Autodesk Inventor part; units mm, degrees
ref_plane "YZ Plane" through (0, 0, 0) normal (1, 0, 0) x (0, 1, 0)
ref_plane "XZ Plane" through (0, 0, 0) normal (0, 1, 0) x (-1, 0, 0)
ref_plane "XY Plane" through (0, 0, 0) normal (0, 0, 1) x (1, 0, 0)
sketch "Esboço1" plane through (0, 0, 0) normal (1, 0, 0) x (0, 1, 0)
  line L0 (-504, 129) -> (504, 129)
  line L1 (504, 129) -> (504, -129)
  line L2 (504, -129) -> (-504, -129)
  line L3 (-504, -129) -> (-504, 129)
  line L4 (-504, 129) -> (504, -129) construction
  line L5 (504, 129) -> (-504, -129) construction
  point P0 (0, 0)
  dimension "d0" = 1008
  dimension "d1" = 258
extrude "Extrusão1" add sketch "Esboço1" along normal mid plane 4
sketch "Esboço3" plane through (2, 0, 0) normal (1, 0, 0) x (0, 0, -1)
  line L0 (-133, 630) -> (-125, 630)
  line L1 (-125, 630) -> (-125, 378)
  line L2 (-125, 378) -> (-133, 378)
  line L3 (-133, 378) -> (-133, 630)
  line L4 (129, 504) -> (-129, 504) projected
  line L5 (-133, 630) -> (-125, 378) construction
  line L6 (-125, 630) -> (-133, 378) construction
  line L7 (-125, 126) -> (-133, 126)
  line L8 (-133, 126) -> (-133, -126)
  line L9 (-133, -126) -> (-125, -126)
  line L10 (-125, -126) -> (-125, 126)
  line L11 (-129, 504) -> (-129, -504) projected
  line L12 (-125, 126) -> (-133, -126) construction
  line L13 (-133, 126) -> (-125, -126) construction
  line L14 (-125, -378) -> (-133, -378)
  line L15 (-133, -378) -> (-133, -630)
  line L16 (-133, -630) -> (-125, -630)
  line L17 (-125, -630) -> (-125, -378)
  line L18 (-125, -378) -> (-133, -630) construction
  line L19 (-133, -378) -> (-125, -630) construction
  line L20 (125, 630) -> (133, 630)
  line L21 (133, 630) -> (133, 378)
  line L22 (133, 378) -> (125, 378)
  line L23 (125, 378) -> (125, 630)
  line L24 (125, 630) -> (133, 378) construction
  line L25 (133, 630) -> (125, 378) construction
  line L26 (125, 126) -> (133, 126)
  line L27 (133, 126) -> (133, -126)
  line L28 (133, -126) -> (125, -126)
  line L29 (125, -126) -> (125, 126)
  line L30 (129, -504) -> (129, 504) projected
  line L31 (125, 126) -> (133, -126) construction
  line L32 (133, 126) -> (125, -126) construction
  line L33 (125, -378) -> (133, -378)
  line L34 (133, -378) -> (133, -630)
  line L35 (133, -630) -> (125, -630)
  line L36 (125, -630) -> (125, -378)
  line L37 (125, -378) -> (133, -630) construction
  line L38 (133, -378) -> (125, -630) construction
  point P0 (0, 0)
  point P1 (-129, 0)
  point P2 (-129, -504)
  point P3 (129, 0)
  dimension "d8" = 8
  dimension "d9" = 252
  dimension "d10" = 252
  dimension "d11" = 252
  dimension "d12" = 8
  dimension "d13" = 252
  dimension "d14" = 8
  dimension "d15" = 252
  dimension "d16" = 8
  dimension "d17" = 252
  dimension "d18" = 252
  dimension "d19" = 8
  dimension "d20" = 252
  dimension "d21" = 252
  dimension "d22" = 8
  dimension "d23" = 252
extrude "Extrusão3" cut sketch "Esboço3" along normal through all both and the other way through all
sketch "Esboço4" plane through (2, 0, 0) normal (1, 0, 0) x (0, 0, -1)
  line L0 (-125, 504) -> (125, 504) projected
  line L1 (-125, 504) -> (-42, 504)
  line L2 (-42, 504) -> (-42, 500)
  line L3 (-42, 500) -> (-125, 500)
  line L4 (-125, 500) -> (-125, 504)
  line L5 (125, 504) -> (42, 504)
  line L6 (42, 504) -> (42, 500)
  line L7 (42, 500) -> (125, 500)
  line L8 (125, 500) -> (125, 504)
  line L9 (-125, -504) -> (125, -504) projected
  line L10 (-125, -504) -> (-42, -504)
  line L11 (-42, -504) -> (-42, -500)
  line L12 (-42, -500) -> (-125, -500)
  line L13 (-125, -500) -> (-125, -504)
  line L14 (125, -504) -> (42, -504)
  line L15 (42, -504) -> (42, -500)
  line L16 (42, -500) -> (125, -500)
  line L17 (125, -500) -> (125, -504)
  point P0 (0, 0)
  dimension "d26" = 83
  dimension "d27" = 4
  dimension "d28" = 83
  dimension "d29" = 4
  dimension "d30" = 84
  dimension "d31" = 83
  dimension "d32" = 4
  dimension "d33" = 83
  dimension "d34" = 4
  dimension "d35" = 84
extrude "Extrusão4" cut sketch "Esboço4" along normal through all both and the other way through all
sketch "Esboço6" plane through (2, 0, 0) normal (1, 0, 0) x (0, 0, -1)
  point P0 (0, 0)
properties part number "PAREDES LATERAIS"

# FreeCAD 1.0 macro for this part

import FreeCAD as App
import Part
import Sketcher
from FreeCAD import Vector
Q = App.Units.Quantity


def add_polygon(sketch, points):
    """Adds a closed chain of lines whose ends are joined by coincident constraints."""
    first, n = sketch.GeometryCount, len(points)
    for a, b in zip(points, points[1:] + points[:1]):
        sketch.addGeometry(Part.LineSegment(App.Vector(*a, 0), App.Vector(*b, 0)), False)
    for i in range(n):
        sketch.addConstraint(Sketcher.Constraint("Coincident", first + i, 2, first + (i + 1) % n, 1))

doc = App.newDocument("Part")
body = doc.addObject("PartDesign::Body", "Body")

sketch1 = doc.addObject("Sketcher::SketchObject", "Sketch")
body.addObject(sketch1)
sketch1.AttachmentSupport = (doc.YZ_Plane, [""])
sketch1.MapMode = "FlatFace"
add_polygon(sketch1, [(504, 129), (-504, 129), (-504, -129), (504, -129)])
sketch1.addConstraint([
    Sketcher.Constraint("Horizontal", 0),
    Sketcher.Constraint("Vertical", 1),
    Sketcher.Constraint("Horizontal", 2),
    Sketcher.Constraint("Vertical", 3),
    Sketcher.Constraint("Symmetric", 0, 2, 2, 2, -1, 1),
    Sketcher.Constraint("DistanceX", 0, 2, 0, 1, Q("1008 mm")),
    Sketcher.Constraint("DistanceY", 1, 2, 1, 1, Q("258 mm")),
])
pad1 = doc.addObject("PartDesign::Pad", "Pad")
body.addObject(pad1)
pad1.Profile = sketch1
pad1.Length = 4
pad1.Midplane = True

sketch2 = doc.addObject("Sketcher::SketchObject", "Sketch001")
body.addObject(sketch2)
sketch2.AttachmentSupport = (doc.YZ_Plane, [""])
sketch2.MapMode = "FlatFace"
sketch2.AttachmentOffset = App.Placement(Vector(0, 0, 2), App.Rotation())
add_polygon(sketch2, [(-378, -133), (-378, -125), (-630, -125), (-630, -133)])
add_polygon(sketch2, [(126, -133), (126, -125), (-126, -125), (-126, -133)])
add_polygon(sketch2, [(630, -125), (378, -125), (378, -133), (630, -133)])
add_polygon(sketch2, [(-378, 125), (-378, 133), (-630, 133), (-630, 125)])
add_polygon(sketch2, [(126, 125), (126, 133), (-126, 133), (-126, 125)])
add_polygon(sketch2, [(630, 125), (630, 133), (378, 133), (378, 125)])
sketch2.addConstraint([
    Sketcher.Constraint("Vertical", 0),
    Sketcher.Constraint("Horizontal", 1),
    Sketcher.Constraint("Vertical", 2),
    Sketcher.Constraint("Horizontal", 3),
    Sketcher.Constraint("Vertical", 4),
    Sketcher.Constraint("Horizontal", 5),
    Sketcher.Constraint("Vertical", 6),
    Sketcher.Constraint("Horizontal", 7),
    Sketcher.Constraint("Horizontal", 8),
    Sketcher.Constraint("Vertical", 9),
    Sketcher.Constraint("Horizontal", 10),
    Sketcher.Constraint("Vertical", 11),
    Sketcher.Constraint("Vertical", 12),
    Sketcher.Constraint("Horizontal", 13),
    Sketcher.Constraint("Vertical", 14),
    Sketcher.Constraint("Horizontal", 15),
    Sketcher.Constraint("Vertical", 16),
    Sketcher.Constraint("Horizontal", 17),
    Sketcher.Constraint("Vertical", 18),
    Sketcher.Constraint("Horizontal", 19),
    Sketcher.Constraint("Vertical", 20),
    Sketcher.Constraint("Horizontal", 21),
    Sketcher.Constraint("Vertical", 22),
    Sketcher.Constraint("Horizontal", 23),
    Sketcher.Constraint("Symmetric", 9, 2, 12, 2, -1, 1),
    Sketcher.Constraint("Symmetric", 11, 2, 14, 2, -1, 1),
    Sketcher.Constraint("Symmetric", 6, 2, 16, 2, -1, 1),
    Sketcher.Constraint("Symmetric", 4, 2, 18, 2, -1, 1),
    Sketcher.Constraint("Symmetric", 2, 2, 20, 2, -1, 1),
    Sketcher.Constraint("Symmetric", 0, 2, 22, 2, -1, 1),
    Sketcher.Constraint("Symmetric", 0, 2, 8, 2, -2),
    Sketcher.Constraint("Symmetric", 2, 2, 10, 2, -2),
    Sketcher.Constraint("Horizontal", 1, 2, 4, 2),
    Sketcher.Constraint("Horizontal", 3, 2, 6, 2),
    Sketcher.Constraint("Vertical", 7, 2, 16, 2),
    Sketcher.Constraint("Equal", 3, 5),
    Sketcher.Constraint("DistanceX", 1, 2, 1, 1, Q("252 mm")),
    Sketcher.Constraint("DistanceY", 0, 1, 0, 2, Q("8 mm")),
    Sketcher.Constraint("DistanceX", 0, 2, 5, 2, Q("252 mm")),
    Sketcher.Constraint("DistanceY", 0, 2, -1, 1, Q("125 mm")),
])
pocket1 = doc.addObject("PartDesign::Pocket", "Pocket")
body.addObject(pocket1)
pocket1.Profile = sketch2
pocket1.Type = "ThroughAll"
pocket1.Midplane = True

sketch3 = doc.addObject("Sketcher::SketchObject", "Sketch002")
body.addObject(sketch3)
sketch3.AttachmentSupport = (doc.YZ_Plane, [""])
sketch3.MapMode = "FlatFace"
sketch3.AttachmentOffset = App.Placement(Vector(0, 0, 2), App.Rotation())
add_polygon(sketch3, [(504, -125), (504, -42), (500, -42), (500, -125)])
add_polygon(sketch3, [(504, 42), (504, 125), (500, 125), (500, 42)])
add_polygon(sketch3, [(-500, 125), (-504, 125), (-504, 42), (-500, 42)])
add_polygon(sketch3, [(-500, -42), (-504, -42), (-504, -125), (-500, -125)])
sketch3.addConstraint([
    Sketcher.Constraint("Vertical", 0),
    Sketcher.Constraint("Horizontal", 1),
    Sketcher.Constraint("Vertical", 2),
    Sketcher.Constraint("Horizontal", 3),
    Sketcher.Constraint("Vertical", 4),
    Sketcher.Constraint("Horizontal", 5),
    Sketcher.Constraint("Vertical", 6),
    Sketcher.Constraint("Horizontal", 7),
    Sketcher.Constraint("Horizontal", 8),
    Sketcher.Constraint("Vertical", 9),
    Sketcher.Constraint("Horizontal", 10),
    Sketcher.Constraint("Vertical", 11),
    Sketcher.Constraint("Horizontal", 12),
    Sketcher.Constraint("Vertical", 13),
    Sketcher.Constraint("Horizontal", 14),
    Sketcher.Constraint("Vertical", 15),
    Sketcher.Constraint("Symmetric", 3, 2, 8, 2, -1, 1),
    Sketcher.Constraint("Symmetric", 1, 2, 10, 2, -1, 1),
    Sketcher.Constraint("Symmetric", 7, 2, 12, 2, -1, 1),
    Sketcher.Constraint("Symmetric", 5, 2, 14, 2, -1, 1),
    Sketcher.Constraint("Symmetric", 4, 2, 8, 2, -2),
    Sketcher.Constraint("Symmetric", 6, 2, 10, 2, -2),
    Sketcher.Constraint("DistanceX", 1, 2, 1, 1, Q("4 mm")),
    Sketcher.Constraint("DistanceY", 0, 1, 0, 2, Q("83 mm")),
    Sketcher.Constraint("DistanceY", 1, 2, 6, 2, Q("84 mm")),
    Sketcher.Constraint("DistanceX", -1, 1, 0, 2, Q("504 mm")),
])
pocket2 = doc.addObject("PartDesign::Pocket", "Pocket001")
body.addObject(pocket2)
pocket2.Profile = sketch3
pocket2.Type = "ThroughAll"
pocket2.Midplane = True

doc.recompute()
